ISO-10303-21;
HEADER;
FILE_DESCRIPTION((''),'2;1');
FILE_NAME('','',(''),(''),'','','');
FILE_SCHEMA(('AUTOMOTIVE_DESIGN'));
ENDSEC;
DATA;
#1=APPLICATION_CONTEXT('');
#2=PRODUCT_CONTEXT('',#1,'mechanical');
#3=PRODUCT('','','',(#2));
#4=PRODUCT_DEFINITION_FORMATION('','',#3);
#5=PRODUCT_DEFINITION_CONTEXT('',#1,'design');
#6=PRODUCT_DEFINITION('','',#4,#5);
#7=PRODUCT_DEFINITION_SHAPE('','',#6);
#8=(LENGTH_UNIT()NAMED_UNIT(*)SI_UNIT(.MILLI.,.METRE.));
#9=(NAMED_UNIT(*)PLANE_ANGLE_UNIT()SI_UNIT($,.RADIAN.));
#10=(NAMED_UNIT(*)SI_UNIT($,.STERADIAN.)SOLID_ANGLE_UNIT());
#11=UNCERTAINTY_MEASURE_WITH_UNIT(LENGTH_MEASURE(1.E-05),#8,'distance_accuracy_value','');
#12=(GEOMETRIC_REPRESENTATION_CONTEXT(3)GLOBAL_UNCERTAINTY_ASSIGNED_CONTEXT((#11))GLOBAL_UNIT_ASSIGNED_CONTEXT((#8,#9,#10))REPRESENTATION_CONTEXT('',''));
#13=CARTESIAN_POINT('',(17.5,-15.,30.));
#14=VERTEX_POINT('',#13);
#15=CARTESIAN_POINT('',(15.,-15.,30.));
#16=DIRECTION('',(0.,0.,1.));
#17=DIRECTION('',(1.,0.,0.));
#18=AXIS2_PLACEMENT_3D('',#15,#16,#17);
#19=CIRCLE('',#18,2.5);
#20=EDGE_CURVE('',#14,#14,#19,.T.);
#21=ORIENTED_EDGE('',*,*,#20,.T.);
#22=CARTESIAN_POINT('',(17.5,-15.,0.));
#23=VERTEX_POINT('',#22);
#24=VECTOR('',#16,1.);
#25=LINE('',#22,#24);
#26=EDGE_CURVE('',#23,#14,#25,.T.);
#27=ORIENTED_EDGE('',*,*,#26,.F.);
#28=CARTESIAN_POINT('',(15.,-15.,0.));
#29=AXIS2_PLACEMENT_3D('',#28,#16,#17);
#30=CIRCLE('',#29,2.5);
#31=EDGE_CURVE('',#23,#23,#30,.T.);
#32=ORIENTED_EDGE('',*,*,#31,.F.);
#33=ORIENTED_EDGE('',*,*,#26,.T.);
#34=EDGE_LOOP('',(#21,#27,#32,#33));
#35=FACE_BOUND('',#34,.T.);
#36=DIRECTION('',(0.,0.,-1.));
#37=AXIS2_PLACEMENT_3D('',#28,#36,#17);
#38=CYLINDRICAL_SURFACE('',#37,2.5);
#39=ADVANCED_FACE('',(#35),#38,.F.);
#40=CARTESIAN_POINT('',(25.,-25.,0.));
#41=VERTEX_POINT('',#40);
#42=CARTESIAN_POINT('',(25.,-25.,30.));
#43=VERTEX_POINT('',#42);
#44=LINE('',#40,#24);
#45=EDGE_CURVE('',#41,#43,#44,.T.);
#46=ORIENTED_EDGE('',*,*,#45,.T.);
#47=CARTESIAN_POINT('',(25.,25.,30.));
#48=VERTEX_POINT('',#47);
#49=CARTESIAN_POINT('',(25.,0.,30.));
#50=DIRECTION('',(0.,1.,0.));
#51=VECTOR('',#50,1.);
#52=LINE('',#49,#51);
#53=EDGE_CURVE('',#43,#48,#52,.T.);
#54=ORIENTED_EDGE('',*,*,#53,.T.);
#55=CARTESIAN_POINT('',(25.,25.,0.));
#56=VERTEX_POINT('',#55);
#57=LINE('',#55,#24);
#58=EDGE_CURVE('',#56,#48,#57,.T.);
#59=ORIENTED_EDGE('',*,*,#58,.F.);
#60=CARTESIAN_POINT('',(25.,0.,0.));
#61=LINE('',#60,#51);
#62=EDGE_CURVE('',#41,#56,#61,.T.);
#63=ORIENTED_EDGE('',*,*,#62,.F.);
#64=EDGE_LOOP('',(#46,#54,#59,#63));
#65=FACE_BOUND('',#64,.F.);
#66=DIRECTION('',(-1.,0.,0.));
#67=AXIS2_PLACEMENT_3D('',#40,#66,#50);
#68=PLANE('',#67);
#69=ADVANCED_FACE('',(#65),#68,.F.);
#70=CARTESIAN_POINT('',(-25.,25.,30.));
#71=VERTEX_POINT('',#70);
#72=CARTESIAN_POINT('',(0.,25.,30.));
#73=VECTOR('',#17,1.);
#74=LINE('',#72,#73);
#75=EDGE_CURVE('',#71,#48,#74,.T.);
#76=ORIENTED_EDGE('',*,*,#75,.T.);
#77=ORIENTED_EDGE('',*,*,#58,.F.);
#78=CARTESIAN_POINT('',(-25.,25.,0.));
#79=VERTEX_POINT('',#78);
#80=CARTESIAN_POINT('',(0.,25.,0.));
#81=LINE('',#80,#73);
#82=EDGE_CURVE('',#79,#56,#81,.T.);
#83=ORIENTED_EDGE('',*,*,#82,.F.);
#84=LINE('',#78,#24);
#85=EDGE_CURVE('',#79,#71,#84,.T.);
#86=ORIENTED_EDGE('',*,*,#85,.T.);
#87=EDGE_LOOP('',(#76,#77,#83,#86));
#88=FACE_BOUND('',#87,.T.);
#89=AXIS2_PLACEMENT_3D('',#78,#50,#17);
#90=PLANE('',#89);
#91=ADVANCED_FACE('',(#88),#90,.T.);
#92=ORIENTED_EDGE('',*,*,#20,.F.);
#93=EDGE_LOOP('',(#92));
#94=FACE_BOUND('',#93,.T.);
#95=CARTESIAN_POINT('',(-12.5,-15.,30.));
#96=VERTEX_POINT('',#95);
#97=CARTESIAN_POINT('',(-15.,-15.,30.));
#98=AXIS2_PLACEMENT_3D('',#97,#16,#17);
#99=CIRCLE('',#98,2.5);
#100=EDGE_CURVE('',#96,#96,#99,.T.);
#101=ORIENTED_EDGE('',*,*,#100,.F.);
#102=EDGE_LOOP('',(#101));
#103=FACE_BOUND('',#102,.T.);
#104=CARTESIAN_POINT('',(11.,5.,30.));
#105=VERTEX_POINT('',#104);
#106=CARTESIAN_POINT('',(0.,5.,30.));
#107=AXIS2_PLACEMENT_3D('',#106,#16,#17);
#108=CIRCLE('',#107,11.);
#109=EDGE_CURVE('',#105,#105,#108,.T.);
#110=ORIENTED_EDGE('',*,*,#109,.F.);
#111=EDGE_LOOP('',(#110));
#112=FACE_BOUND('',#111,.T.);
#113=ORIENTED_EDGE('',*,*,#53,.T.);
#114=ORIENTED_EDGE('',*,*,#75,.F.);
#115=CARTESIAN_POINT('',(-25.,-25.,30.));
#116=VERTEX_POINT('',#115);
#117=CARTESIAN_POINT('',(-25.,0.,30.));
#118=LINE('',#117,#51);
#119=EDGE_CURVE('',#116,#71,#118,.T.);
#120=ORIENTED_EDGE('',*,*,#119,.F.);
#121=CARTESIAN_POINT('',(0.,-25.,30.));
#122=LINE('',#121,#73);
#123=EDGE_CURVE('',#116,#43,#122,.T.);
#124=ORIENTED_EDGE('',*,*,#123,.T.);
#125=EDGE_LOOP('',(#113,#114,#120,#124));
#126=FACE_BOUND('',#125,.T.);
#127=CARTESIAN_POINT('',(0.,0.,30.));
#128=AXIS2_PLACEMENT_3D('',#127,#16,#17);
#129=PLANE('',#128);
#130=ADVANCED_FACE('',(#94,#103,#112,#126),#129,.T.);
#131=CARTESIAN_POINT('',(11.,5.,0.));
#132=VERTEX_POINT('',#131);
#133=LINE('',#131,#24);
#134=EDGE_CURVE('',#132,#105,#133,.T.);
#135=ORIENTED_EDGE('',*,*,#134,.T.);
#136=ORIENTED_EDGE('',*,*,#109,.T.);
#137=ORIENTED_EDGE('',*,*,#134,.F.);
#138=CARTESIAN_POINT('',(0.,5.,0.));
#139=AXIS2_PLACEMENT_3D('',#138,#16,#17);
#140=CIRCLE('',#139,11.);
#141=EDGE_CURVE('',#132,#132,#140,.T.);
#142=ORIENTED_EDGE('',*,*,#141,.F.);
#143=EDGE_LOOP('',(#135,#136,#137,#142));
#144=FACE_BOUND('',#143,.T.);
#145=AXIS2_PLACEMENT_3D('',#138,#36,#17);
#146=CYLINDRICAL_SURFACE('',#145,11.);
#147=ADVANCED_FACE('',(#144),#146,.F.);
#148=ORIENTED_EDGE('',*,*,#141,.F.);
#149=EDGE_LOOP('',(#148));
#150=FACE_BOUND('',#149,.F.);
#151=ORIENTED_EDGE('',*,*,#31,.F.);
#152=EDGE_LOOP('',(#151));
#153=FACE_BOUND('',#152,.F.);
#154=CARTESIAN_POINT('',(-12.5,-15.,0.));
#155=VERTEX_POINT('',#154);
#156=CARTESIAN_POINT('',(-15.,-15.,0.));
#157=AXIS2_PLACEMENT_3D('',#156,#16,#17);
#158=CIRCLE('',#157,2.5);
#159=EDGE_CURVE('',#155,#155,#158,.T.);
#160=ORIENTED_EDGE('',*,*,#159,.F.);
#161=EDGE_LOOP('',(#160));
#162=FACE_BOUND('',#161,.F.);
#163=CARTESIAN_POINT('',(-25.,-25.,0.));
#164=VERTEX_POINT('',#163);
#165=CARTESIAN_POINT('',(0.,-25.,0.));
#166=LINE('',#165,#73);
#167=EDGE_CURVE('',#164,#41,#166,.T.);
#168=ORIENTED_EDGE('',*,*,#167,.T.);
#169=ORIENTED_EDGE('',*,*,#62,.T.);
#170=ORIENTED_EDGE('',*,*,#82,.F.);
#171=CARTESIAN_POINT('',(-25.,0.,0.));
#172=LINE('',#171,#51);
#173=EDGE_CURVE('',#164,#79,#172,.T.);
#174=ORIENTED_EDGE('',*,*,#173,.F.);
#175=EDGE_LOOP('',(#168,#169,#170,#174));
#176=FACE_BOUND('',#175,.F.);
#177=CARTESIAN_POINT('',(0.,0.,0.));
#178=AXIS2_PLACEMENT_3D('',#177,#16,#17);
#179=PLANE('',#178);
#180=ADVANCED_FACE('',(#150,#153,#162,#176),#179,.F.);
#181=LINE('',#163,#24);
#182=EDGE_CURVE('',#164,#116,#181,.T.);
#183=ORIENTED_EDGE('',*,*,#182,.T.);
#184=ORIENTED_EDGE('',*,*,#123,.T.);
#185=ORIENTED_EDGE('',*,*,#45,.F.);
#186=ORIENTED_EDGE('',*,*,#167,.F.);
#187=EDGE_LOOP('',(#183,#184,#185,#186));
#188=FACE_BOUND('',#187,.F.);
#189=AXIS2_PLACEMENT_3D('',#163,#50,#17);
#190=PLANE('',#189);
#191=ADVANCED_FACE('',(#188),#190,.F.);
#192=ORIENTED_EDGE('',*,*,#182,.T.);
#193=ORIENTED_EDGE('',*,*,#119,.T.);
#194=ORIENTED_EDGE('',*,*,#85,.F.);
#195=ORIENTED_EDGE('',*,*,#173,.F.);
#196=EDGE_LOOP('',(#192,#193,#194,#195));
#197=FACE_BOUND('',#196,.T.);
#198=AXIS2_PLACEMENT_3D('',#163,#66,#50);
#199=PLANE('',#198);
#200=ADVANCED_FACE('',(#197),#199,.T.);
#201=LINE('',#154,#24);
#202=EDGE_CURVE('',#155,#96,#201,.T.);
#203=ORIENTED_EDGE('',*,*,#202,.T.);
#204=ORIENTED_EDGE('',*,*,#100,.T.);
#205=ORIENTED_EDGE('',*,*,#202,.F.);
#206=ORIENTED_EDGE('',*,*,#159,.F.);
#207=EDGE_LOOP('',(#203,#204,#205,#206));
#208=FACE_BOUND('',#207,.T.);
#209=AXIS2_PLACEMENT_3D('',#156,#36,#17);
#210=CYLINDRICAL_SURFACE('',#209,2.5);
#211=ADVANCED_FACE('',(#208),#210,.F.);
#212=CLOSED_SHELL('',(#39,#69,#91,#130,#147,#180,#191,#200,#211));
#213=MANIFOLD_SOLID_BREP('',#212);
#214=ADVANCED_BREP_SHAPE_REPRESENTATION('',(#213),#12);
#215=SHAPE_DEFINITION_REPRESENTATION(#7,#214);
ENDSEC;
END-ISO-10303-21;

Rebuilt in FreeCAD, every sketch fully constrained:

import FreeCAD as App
import Part
import Sketcher

V = App.Vector
Q = App.Units.Quantity


def add_polygon(sketch, points):
    """Adds a closed chain of lines whose ends are joined by coincident constraints."""
    first, n = sketch.GeometryCount, len(points)
    for a, b in zip(points, points[1:] + points[:1]):
        sketch.addGeometry(Part.LineSegment(App.Vector(*a, 0), App.Vector(*b, 0)), False)
    for i in range(n):
        sketch.addConstraint(Sketcher.Constraint("Coincident", first + i, 2, first + (i + 1) % n, 1))

doc = App.newDocument("Part")
params = doc.addObject("Spreadsheet::Sheet", "Params")
for row, (alias, value) in enumerate([
    ("sketch1_diameter", "5 mm"),
    ("sketch1_diameter2", "22 mm"),
    ("sketch1_width", "50 mm"),
    ("pad1_length", "30 mm"),
], start=1):
    params.set(f"A{row}", alias)
    params.set(f"B{row}", "=" + value)
    params.setAlias(f"B{row}", alias)

body = doc.addObject("PartDesign::Body", "Body")

# Sketch on XY plane
sketch1 = doc.addObject("Sketcher::SketchObject", "Sketch")
body.addObject(sketch1)
sketch1.AttachmentSupport = (doc.XY_Plane, [""])
sketch1.MapMode = "FlatFace"
add_polygon(sketch1, [(-25, 25), (-25, -25), (25, -25), (25, 25)])  # lines 0-3
sketch1.addGeometry(Part.Circle(V(-15, -15, 0), V(0, 0, 1), 2.5), False)  # 4
sketch1.addGeometry(Part.Circle(V(15, -15, 0), V(0, 0, 1), 2.5), False)  # 5
sketch1.addGeometry(Part.Circle(V(0, 5, 0), V(0, 0, 1), 11), False)  # 6
sketch1.addConstraint([
    Sketcher.Constraint("Vertical", 0),
    Sketcher.Constraint("Horizontal", 1),
    Sketcher.Constraint("Vertical", 2),
    Sketcher.Constraint("Horizontal", 3),
    Sketcher.Constraint("Equal", 4, 5),
    Sketcher.Constraint("Symmetric", 0, 2, 2, 2, -1, 1),
    Sketcher.Constraint("Symmetric", 4, 3, 5, 3, -2),
    Sketcher.Constraint("PointOnObject", 6, 3, -2),
    Sketcher.Constraint("Equal", 3, 0),
    Sketcher.Constraint("Diameter", 4, Q("5 mm")),
    Sketcher.Constraint("Diameter", 6, Q("22 mm")),
    Sketcher.Constraint("DistanceX", 1, 1, 1, 2, Q("50 mm")),
    Sketcher.Constraint("DistanceX", 4, 3, -1, 1, Q("15 mm")),
    Sketcher.Constraint("DistanceY", 4, 3, -1, 1, Q("15 mm")),
    Sketcher.Constraint("DistanceY", -1, 1, 6, 3, Q("5 mm")),
])
sketch1.setExpression("Constraints[13]", "Params.sketch1_diameter")
sketch1.setExpression("Constraints[14]", "Params.sketch1_diameter2")
sketch1.setExpression("Constraints[15]", "Params.sketch1_width")
pad1 = doc.addObject("PartDesign::Pad", "Pad")
body.addObject(pad1)
pad1.Profile = sketch1
pad1.setExpression("Length", "Params.pad1_length")

doc.recompute()
